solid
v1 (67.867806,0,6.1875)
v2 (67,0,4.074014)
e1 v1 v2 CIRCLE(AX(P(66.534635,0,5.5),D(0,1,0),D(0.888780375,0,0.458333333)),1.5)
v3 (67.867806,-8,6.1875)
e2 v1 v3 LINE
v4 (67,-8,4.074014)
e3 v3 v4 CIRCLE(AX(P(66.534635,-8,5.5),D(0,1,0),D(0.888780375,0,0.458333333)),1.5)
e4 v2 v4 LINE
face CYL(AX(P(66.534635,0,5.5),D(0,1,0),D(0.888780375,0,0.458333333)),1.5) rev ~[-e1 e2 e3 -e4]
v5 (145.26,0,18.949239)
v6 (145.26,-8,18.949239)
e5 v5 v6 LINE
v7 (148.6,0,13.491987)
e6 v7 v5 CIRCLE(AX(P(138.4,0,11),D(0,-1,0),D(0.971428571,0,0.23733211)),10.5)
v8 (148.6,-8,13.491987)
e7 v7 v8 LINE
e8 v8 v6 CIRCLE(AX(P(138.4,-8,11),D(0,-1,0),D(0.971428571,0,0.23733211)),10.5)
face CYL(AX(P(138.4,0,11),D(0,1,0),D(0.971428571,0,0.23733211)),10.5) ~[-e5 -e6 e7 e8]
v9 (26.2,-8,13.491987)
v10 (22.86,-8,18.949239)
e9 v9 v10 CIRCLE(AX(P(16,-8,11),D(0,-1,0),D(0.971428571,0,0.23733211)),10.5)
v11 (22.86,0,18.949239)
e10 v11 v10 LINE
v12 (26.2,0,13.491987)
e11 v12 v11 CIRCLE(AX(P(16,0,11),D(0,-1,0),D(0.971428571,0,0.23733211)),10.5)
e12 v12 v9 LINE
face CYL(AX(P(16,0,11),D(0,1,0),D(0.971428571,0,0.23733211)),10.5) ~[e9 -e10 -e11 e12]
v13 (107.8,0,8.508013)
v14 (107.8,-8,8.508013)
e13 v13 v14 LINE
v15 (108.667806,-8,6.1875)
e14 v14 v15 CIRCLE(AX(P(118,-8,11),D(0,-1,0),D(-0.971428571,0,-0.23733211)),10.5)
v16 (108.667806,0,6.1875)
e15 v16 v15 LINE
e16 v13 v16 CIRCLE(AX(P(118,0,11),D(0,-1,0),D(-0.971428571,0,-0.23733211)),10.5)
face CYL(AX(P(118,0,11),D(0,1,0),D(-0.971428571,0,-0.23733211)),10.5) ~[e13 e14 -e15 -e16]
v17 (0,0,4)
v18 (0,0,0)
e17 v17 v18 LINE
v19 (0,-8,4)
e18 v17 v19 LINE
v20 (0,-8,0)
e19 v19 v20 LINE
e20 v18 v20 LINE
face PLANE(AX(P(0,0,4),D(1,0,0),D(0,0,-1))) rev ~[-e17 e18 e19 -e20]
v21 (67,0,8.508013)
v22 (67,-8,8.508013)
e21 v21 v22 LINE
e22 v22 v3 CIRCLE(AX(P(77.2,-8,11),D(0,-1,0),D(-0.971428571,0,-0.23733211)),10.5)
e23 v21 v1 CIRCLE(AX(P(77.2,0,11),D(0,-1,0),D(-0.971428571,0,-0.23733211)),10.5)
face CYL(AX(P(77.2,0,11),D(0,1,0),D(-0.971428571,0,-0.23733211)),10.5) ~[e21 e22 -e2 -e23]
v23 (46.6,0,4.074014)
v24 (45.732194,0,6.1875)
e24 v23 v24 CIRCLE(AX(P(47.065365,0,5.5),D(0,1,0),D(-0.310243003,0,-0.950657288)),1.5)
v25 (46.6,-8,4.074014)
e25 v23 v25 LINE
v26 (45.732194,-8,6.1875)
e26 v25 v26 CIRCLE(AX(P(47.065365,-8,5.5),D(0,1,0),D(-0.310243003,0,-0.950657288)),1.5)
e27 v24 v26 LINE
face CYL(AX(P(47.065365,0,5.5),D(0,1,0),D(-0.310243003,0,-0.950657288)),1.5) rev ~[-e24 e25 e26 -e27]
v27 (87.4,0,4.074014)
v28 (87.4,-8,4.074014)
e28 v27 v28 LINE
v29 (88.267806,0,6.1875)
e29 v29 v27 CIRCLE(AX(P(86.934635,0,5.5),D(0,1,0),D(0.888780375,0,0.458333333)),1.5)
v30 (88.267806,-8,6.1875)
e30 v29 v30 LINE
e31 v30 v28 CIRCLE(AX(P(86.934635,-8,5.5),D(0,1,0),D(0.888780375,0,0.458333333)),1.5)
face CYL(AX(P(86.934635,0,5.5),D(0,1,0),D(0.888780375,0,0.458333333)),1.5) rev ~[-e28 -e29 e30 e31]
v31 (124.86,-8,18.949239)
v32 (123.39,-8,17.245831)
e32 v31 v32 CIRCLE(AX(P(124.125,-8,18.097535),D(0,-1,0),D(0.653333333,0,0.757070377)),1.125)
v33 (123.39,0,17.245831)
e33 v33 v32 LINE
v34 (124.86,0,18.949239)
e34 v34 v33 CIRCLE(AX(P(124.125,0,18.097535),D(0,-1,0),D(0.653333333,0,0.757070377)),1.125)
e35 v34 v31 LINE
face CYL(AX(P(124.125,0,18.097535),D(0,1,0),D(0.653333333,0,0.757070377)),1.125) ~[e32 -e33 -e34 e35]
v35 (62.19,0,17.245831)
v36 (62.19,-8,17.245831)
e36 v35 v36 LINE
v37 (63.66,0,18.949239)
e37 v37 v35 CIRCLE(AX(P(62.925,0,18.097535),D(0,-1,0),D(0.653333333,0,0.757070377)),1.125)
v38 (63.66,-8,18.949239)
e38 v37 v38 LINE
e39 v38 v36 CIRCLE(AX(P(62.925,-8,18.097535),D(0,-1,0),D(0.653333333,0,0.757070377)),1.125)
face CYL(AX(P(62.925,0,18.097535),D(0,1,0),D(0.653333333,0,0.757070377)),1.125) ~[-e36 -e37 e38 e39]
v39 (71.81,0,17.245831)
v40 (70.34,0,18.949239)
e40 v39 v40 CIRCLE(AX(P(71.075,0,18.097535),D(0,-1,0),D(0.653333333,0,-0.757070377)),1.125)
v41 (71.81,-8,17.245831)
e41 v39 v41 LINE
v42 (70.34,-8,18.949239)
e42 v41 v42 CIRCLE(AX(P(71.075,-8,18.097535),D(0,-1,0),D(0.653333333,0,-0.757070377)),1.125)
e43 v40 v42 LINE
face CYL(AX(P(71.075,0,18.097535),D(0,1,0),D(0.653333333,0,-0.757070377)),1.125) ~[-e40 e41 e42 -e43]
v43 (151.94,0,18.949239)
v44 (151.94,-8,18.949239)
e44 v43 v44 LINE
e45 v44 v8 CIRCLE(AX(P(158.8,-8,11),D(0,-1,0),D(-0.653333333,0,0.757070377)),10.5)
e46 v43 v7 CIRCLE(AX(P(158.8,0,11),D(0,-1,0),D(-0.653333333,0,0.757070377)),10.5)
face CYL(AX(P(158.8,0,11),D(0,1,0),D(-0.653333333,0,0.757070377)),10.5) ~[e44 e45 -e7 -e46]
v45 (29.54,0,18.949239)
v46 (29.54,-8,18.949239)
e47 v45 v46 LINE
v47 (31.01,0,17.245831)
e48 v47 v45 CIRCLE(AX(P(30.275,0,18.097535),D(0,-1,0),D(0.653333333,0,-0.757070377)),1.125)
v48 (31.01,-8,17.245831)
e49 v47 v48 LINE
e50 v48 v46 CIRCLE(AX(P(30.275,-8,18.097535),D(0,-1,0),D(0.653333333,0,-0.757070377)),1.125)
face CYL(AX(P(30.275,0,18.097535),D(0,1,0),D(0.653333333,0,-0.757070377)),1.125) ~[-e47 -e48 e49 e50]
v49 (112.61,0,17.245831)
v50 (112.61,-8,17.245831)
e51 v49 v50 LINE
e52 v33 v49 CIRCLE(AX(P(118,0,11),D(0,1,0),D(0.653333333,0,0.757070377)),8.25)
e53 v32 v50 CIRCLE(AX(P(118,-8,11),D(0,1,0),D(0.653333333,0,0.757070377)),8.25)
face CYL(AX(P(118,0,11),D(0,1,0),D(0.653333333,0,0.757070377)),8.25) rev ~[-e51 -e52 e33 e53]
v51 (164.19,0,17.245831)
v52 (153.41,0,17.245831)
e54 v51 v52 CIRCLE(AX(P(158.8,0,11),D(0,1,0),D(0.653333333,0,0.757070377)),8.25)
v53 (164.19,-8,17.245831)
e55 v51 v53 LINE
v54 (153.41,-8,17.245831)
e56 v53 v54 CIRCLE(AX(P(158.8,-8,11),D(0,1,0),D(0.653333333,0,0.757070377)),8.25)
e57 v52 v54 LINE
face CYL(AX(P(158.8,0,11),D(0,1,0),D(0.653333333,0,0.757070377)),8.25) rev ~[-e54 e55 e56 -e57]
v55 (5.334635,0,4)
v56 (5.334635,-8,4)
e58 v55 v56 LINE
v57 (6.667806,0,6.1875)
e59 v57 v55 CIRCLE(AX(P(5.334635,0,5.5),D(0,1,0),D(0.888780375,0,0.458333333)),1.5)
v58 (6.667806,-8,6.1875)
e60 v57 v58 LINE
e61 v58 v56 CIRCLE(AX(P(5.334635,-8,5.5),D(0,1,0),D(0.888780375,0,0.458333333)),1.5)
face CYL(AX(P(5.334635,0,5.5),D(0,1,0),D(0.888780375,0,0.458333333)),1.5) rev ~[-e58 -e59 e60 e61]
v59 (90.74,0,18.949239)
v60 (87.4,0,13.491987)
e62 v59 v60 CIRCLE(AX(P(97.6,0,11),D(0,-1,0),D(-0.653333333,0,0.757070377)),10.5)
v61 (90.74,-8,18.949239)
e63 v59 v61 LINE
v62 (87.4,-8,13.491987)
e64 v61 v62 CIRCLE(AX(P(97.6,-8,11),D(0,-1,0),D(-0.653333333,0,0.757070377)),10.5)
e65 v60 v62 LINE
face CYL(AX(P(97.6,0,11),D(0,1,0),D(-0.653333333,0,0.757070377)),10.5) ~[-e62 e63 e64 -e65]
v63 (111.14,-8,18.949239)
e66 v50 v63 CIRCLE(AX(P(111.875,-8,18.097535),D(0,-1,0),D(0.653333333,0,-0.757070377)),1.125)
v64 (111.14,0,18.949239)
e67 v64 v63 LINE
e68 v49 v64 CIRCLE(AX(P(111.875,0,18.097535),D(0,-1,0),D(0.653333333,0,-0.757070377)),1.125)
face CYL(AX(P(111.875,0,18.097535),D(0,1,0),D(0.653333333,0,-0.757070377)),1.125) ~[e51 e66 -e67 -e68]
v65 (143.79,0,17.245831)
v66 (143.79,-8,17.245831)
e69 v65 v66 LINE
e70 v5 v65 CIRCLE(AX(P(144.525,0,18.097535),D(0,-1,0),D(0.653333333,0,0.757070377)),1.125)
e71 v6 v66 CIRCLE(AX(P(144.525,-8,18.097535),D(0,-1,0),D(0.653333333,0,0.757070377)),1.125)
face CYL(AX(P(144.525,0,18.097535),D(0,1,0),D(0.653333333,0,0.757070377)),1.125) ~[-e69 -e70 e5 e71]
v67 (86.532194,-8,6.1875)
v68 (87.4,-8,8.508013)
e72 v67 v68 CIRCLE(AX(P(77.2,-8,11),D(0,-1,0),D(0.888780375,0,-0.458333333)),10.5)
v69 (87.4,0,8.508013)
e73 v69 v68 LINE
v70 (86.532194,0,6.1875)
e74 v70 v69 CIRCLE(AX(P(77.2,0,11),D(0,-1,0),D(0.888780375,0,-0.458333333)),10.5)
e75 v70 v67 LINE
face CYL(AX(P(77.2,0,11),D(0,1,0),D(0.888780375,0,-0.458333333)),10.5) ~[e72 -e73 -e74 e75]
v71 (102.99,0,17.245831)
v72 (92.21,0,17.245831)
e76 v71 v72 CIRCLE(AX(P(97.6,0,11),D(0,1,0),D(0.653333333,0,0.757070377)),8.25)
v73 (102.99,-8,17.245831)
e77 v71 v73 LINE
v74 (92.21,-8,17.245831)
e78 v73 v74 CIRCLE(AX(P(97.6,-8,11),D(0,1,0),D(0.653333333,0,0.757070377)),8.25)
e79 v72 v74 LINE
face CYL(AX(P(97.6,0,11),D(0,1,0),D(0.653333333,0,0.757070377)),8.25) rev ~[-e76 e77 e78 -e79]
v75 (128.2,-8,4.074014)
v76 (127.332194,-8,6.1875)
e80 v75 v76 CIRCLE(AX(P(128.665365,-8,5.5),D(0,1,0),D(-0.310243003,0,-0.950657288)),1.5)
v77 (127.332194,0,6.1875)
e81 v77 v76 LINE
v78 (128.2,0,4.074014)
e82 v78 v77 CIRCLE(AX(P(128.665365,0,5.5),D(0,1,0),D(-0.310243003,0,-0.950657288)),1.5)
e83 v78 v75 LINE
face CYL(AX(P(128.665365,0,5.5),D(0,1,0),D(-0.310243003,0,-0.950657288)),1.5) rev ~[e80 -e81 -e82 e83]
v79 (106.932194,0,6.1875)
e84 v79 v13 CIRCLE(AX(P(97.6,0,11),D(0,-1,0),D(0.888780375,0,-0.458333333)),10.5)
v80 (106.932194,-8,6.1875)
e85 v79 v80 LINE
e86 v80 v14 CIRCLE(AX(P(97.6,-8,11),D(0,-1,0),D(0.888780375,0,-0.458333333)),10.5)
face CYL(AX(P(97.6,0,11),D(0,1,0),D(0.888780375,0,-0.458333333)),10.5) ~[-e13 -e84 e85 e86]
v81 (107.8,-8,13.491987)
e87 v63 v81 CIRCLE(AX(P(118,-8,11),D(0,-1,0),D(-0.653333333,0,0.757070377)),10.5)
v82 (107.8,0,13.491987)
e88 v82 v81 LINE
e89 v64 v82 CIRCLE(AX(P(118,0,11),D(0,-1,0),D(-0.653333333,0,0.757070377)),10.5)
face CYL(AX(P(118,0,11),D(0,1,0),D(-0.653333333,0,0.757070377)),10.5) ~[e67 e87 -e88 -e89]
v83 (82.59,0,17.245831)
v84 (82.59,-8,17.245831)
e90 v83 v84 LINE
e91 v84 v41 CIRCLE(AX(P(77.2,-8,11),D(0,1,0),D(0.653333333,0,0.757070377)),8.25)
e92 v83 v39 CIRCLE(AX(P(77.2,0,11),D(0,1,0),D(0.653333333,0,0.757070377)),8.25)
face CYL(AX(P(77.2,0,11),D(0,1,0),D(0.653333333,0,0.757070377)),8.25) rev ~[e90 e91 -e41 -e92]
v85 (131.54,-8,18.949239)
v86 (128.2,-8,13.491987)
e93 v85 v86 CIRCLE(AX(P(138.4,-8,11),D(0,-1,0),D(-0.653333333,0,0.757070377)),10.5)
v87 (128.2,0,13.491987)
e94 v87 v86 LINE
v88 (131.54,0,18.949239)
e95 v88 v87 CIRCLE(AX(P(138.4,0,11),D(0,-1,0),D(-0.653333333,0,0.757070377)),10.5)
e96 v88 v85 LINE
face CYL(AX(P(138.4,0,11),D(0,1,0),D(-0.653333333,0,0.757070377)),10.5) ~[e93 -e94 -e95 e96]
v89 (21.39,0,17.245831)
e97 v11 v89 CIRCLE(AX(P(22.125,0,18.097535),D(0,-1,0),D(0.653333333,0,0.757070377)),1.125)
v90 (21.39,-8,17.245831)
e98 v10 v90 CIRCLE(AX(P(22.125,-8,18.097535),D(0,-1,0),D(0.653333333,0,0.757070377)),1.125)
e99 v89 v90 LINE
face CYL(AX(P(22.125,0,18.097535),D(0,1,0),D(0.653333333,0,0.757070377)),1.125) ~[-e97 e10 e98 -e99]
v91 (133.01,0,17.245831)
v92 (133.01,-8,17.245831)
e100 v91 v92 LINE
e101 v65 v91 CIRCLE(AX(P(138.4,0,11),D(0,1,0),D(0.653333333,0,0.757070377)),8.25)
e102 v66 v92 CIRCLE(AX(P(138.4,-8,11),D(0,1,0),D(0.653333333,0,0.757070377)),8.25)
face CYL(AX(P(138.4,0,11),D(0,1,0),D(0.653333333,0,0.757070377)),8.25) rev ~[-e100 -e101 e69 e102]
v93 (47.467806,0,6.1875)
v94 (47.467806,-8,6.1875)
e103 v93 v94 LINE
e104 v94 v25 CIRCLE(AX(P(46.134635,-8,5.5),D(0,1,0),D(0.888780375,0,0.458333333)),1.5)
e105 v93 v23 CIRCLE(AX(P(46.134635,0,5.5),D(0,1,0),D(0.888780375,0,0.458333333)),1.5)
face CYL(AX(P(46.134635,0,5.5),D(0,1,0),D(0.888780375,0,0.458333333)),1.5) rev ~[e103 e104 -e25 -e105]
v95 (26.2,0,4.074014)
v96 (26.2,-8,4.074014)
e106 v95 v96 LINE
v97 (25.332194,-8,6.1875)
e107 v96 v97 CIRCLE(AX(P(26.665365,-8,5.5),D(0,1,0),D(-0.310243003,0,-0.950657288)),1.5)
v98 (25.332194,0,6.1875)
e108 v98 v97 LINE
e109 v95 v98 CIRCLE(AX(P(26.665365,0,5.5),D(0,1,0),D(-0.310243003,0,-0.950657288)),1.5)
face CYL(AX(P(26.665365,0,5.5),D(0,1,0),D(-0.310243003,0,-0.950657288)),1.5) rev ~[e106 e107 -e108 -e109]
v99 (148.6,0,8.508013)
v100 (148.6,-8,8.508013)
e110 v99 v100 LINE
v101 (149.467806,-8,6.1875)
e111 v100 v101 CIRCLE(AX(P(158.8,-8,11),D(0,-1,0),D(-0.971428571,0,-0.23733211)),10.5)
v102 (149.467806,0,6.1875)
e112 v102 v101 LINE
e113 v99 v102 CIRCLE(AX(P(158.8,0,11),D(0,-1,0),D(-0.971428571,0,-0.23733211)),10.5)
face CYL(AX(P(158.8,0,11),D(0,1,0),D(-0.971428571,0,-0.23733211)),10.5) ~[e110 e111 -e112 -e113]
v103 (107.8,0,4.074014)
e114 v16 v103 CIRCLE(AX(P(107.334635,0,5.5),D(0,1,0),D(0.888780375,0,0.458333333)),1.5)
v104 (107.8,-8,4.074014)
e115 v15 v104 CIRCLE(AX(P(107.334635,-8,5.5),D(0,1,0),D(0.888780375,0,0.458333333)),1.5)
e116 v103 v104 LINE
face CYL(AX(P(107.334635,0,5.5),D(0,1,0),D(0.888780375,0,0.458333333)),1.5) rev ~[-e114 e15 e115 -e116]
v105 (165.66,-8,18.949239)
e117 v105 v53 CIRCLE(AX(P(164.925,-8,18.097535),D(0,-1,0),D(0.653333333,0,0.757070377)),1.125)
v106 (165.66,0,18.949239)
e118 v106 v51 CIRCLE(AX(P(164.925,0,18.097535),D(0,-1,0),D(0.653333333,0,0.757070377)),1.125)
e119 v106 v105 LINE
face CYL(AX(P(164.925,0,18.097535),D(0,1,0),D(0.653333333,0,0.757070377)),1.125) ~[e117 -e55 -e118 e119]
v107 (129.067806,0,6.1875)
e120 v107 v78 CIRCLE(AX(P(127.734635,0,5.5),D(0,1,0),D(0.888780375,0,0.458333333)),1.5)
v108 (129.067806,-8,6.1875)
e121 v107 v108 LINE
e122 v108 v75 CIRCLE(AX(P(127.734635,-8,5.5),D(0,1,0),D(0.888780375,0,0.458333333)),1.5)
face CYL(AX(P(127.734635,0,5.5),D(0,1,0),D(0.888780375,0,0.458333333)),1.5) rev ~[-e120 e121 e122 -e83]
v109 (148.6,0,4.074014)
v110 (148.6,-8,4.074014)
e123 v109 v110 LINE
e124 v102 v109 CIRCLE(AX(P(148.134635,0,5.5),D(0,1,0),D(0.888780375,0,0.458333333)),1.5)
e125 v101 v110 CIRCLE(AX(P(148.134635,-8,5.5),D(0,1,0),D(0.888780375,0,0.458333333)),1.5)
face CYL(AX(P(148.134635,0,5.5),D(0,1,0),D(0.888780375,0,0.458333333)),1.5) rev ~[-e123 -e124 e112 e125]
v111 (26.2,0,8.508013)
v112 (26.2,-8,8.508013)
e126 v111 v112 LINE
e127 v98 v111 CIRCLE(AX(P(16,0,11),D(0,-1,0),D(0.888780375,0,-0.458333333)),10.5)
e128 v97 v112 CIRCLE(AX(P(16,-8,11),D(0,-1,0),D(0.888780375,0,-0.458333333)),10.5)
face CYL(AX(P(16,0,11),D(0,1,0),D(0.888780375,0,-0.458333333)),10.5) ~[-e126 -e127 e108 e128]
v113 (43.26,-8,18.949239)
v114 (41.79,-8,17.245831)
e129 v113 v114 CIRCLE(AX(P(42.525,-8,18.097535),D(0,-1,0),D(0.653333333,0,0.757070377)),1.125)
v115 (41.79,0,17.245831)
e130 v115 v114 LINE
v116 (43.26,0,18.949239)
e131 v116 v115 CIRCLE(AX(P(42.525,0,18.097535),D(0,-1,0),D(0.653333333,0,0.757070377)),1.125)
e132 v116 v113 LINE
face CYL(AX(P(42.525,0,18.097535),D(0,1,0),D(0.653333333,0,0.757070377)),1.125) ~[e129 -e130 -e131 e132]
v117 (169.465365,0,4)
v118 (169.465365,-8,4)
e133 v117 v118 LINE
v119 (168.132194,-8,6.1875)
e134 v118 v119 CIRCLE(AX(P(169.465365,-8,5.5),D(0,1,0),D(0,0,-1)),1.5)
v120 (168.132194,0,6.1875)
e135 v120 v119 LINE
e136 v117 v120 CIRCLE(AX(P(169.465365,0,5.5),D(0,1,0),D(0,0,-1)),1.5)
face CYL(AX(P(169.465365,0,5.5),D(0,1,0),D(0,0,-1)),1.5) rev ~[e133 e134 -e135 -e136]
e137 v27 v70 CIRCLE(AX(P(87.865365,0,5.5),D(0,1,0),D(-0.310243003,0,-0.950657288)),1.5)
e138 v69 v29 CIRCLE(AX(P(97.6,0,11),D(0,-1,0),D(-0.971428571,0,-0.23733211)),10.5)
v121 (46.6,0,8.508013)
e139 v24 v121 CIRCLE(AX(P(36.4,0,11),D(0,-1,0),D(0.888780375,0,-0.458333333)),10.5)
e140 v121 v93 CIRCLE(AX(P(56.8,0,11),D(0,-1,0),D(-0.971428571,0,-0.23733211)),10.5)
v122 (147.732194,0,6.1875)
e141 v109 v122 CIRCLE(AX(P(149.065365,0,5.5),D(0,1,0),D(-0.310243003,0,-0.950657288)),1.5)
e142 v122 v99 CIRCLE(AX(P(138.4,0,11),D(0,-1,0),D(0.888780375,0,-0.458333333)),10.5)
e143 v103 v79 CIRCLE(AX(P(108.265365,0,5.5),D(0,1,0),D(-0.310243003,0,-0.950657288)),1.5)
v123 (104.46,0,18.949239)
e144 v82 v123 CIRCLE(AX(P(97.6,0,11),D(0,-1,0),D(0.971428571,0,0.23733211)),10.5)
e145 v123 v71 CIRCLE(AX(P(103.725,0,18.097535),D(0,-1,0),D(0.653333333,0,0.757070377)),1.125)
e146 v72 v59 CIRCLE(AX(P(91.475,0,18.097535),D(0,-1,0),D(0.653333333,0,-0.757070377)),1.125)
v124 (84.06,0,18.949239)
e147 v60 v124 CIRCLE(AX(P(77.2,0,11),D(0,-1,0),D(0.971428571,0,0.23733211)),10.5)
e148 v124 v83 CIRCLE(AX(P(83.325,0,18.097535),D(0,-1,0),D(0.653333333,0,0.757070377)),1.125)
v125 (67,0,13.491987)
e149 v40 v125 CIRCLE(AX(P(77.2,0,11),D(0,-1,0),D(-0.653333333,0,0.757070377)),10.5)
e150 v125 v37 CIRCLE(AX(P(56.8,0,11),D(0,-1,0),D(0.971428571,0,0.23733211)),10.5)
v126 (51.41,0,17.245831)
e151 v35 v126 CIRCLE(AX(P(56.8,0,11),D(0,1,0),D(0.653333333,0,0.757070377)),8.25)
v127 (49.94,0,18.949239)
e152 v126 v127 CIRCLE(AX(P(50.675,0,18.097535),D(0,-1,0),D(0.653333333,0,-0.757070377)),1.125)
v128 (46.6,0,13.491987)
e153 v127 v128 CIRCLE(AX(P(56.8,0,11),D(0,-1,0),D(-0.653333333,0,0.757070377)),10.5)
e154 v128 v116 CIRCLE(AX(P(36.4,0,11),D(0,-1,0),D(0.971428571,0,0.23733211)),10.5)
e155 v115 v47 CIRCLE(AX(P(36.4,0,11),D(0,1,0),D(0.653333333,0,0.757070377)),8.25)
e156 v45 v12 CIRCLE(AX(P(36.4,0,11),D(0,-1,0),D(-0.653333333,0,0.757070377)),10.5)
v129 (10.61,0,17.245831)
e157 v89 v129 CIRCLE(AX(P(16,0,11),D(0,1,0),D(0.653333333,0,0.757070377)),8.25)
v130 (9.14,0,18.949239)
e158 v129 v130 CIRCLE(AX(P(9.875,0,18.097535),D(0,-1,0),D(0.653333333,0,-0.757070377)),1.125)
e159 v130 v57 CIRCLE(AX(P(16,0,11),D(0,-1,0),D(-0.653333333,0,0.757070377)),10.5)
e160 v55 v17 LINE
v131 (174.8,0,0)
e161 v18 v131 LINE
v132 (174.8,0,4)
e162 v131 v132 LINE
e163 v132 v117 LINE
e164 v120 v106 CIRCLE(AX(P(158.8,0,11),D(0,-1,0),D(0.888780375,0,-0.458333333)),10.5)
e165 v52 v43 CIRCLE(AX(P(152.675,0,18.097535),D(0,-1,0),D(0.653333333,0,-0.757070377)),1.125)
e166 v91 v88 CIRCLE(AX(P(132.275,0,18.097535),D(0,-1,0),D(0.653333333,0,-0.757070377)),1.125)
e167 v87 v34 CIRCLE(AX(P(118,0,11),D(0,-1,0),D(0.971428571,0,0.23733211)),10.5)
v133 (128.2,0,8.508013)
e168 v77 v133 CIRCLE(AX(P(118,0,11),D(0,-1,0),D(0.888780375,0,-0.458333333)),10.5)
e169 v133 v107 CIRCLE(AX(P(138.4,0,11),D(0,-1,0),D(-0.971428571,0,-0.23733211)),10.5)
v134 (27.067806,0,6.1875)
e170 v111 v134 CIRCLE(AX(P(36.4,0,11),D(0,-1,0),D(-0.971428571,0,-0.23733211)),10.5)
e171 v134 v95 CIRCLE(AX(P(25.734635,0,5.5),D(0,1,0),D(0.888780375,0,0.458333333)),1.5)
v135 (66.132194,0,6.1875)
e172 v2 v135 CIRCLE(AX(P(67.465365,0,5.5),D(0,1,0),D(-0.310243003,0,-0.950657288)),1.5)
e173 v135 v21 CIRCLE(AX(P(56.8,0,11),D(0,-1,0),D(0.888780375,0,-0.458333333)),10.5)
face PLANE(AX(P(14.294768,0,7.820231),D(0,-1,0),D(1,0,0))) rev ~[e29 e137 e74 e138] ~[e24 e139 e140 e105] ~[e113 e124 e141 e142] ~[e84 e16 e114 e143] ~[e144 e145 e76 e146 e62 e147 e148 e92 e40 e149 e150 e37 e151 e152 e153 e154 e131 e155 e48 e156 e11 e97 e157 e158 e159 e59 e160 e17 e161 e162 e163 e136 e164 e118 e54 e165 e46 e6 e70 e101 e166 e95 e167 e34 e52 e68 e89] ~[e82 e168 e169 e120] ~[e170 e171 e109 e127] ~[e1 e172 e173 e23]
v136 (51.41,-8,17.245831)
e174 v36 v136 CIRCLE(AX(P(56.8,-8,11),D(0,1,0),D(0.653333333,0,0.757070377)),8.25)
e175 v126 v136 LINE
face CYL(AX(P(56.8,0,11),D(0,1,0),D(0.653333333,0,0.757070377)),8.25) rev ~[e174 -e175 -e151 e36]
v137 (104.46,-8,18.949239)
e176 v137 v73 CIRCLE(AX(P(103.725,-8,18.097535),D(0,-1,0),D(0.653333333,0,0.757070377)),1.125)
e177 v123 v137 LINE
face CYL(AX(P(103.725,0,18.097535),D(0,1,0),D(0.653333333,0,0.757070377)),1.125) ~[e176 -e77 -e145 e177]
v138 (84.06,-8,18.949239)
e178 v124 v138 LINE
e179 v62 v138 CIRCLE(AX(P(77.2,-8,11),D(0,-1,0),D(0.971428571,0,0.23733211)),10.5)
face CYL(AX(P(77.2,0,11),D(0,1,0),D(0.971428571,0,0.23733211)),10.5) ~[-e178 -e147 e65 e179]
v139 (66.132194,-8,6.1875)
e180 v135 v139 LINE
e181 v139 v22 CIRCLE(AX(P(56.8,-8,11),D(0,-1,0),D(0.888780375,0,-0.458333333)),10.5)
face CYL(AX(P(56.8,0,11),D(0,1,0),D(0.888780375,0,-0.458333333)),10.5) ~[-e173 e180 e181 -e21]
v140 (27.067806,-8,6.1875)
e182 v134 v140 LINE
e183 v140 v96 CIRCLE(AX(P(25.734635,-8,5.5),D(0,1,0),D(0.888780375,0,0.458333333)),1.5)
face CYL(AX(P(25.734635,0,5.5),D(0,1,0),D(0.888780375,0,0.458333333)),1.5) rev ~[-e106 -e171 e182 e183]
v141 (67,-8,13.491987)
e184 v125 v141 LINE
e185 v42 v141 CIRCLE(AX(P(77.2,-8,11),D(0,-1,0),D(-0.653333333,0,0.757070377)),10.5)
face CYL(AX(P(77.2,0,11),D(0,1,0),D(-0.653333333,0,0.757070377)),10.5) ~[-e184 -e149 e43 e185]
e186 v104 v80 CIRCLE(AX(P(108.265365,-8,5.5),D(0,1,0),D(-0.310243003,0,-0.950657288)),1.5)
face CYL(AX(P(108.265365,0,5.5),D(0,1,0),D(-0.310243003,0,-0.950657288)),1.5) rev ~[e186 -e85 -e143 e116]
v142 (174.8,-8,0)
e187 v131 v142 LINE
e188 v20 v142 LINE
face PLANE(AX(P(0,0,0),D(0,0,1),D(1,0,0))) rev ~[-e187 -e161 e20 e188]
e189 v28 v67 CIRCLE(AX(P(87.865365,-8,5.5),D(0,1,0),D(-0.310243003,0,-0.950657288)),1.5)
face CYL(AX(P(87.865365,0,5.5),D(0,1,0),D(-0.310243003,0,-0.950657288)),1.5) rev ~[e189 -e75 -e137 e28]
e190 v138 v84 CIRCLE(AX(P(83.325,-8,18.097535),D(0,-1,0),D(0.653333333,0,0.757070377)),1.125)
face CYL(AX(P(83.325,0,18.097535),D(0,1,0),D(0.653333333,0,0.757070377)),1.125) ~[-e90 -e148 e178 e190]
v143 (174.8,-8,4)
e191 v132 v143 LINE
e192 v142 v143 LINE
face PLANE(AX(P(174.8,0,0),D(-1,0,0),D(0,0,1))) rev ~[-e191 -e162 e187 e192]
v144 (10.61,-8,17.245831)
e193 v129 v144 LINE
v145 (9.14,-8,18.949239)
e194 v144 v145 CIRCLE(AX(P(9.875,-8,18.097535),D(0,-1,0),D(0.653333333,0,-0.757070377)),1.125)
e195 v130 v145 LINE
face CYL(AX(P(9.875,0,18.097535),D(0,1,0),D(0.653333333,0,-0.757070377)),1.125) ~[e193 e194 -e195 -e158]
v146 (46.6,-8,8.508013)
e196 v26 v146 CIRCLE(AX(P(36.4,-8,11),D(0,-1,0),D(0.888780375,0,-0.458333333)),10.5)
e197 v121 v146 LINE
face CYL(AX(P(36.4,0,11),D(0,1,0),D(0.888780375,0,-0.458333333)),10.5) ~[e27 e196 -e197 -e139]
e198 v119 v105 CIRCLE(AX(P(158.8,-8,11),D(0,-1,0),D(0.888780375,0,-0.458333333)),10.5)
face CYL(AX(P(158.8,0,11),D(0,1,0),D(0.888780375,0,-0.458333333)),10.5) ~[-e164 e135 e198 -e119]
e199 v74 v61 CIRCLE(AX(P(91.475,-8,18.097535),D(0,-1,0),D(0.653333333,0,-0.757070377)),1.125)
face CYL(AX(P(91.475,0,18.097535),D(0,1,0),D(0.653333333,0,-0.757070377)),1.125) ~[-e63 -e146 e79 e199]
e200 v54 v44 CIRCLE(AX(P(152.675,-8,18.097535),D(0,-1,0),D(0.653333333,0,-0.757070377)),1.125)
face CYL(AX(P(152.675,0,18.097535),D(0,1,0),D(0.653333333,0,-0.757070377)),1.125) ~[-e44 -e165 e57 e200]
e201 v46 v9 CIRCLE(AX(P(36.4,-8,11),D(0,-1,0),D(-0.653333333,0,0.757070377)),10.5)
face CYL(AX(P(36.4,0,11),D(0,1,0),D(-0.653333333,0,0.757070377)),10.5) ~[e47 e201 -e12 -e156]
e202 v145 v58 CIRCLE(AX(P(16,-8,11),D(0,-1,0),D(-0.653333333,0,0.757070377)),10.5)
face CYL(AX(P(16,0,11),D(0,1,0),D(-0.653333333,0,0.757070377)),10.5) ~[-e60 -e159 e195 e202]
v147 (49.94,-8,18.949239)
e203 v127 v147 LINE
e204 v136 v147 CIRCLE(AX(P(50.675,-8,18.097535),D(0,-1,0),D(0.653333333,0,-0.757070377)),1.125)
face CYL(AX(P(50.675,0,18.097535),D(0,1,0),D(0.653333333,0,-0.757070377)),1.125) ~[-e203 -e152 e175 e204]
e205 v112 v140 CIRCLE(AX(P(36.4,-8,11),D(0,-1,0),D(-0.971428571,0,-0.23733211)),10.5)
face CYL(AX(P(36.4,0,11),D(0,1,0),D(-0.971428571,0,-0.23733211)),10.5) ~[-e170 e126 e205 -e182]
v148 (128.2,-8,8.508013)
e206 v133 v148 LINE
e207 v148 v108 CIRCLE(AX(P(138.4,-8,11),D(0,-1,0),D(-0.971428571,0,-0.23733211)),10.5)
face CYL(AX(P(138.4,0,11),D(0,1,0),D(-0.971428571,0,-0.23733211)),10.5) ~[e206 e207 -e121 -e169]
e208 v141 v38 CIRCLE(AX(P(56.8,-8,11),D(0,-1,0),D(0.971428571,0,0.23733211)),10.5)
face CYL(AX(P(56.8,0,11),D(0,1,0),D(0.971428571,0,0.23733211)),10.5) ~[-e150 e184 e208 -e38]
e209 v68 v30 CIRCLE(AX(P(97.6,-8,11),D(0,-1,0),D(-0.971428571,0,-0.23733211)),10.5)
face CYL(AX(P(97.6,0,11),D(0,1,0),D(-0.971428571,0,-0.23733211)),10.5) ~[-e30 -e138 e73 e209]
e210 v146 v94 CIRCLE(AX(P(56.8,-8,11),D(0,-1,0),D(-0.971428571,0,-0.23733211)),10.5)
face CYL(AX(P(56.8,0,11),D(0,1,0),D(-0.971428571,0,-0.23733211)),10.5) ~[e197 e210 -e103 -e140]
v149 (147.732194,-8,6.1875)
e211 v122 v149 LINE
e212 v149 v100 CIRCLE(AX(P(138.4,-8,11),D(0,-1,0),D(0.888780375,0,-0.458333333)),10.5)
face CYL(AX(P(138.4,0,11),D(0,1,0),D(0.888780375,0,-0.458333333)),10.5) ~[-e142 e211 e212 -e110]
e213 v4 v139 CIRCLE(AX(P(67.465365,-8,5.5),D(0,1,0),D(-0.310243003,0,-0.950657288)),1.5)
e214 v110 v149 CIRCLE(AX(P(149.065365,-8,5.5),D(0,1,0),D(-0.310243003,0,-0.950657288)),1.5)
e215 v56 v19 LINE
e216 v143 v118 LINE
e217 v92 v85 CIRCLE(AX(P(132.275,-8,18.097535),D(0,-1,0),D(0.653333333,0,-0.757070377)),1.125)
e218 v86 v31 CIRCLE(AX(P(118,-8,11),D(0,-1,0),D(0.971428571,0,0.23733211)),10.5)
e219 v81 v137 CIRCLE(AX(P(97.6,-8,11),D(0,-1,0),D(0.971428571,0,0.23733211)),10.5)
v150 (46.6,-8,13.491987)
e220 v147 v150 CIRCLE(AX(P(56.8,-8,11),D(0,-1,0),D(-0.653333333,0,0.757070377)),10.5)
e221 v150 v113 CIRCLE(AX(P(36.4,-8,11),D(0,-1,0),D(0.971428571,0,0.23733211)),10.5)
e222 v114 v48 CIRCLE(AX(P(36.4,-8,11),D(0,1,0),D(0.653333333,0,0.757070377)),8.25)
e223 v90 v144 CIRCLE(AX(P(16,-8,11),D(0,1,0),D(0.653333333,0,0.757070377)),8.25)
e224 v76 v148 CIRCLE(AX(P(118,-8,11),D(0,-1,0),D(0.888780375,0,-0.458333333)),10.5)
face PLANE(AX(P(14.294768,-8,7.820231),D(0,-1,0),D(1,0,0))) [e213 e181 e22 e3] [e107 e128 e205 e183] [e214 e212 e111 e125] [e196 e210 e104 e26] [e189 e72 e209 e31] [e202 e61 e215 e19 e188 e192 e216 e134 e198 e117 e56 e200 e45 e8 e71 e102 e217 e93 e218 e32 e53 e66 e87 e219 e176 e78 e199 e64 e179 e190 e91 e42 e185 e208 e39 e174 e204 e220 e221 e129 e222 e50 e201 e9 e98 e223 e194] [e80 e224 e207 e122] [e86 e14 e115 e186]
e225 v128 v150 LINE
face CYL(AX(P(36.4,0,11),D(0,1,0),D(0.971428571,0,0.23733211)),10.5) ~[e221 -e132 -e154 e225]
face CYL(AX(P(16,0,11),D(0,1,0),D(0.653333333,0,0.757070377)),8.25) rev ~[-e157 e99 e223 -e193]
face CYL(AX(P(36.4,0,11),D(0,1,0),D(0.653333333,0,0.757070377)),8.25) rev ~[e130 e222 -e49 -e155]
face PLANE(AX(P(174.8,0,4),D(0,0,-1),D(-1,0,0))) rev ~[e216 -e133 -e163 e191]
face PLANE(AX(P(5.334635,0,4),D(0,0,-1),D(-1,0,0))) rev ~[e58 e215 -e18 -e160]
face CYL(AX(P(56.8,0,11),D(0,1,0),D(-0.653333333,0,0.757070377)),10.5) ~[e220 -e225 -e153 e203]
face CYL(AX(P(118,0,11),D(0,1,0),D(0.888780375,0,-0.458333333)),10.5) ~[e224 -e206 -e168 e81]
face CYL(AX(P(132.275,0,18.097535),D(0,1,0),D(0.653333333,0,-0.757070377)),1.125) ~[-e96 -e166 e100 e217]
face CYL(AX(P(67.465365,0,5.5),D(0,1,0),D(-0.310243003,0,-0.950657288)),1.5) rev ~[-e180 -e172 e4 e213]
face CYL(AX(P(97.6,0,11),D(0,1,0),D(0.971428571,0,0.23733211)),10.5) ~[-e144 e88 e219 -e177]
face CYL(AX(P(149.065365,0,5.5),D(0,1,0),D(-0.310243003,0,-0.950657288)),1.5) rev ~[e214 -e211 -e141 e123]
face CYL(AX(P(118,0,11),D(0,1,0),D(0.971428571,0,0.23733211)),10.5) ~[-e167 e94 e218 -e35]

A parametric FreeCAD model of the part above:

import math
import FreeCAD as App
import Part
import Sketcher
Q = App.Units.Quantity

doc = App.newDocument("Part")
body = doc.addObject("PartDesign::Body", "Body")

sketch1 = body.newObject("Sketcher::SketchObject", "Sketch")
sketch1.AttachmentSupport = (doc.getObject("XZ_Plane"), [""])
sketch1.MapMode = "FlatFace"
sketch1.addGeometry([
    Part.ArcOfCircle(Part.Circle(App.Vector(158.8, 11, 0), App.Vector(0, 0, 1), 10.5), math.radians(131), math.radians(166)),
    Part.ArcOfCircle(Part.Circle(App.Vector(138.4, 11, 0), App.Vector(0, 0, 1), 10.5), math.radians(14), math.radians(49)),
    Part.ArcOfCircle(Part.Circle(App.Vector(144.5, 18.1, 0), App.Vector(0, 0, 1), 1.1), math.radians(49), math.radians(229)),
    Part.ArcOfCircle(Part.Circle(App.Vector(138.4, 11, 0), App.Vector(0, 0, 1), 8.2), math.radians(131), math.radians(409)),
    Part.ArcOfCircle(Part.Circle(App.Vector(132.3, 18.1, 0), App.Vector(0, 0, 1), 1.1), math.radians(-49), math.radians(131)),
    Part.ArcOfCircle(Part.Circle(App.Vector(138.4, 11, 0), App.Vector(0, 0, 1), 10.5), math.radians(131), math.radians(166)),
    Part.ArcOfCircle(Part.Circle(App.Vector(118, 11, 0), App.Vector(0, 0, 1), 10.5), math.radians(14), math.radians(49)),
    Part.ArcOfCircle(Part.Circle(App.Vector(124.1, 18.1, 0), App.Vector(0, 0, 1), 1.1), math.radians(49), math.radians(229)),
    Part.ArcOfCircle(Part.Circle(App.Vector(118, 11, 0), App.Vector(0, 0, 1), 8.2), math.radians(131), math.radians(409)),
    Part.ArcOfCircle(Part.Circle(App.Vector(111.9, 18.1, 0), App.Vector(0, 0, 1), 1.1), math.radians(-49), math.radians(131)),
    Part.ArcOfCircle(Part.Circle(App.Vector(118, 11, 0), App.Vector(0, 0, 1), 10.5), math.radians(131), math.radians(166)),
    Part.ArcOfCircle(Part.Circle(App.Vector(97.6, 11, 0), App.Vector(0, 0, 1), 10.5), math.radians(14), math.radians(49)),
    Part.ArcOfCircle(Part.Circle(App.Vector(103.7, 18.1, 0), App.Vector(0, 0, 1), 1.1), math.radians(49), math.radians(229)),
    Part.ArcOfCircle(Part.Circle(App.Vector(97.6, 11, 0), App.Vector(0, 0, 1), 8.2), math.radians(131), math.radians(409)),
    Part.ArcOfCircle(Part.Circle(App.Vector(91.5, 18.1, 0), App.Vector(0, 0, 1), 1.1), math.radians(-49), math.radians(131)),
    Part.ArcOfCircle(Part.Circle(App.Vector(97.6, 11, 0), App.Vector(0, 0, 1), 10.5), math.radians(131), math.radians(166)),
    Part.ArcOfCircle(Part.Circle(App.Vector(77.2, 11, 0), App.Vector(0, 0, 1), 10.5), math.radians(14), math.radians(49)),
    Part.ArcOfCircle(Part.Circle(App.Vector(83.3, 18.1, 0), App.Vector(0, 0, 1), 1.1), math.radians(49), math.radians(229)),
    Part.ArcOfCircle(Part.Circle(App.Vector(77.2, 11, 0), App.Vector(0, 0, 1), 8.2), math.radians(131), math.radians(409)),
    Part.ArcOfCircle(Part.Circle(App.Vector(71.1, 18.1, 0), App.Vector(0, 0, 1), 1.1), math.radians(-49), math.radians(131)),
    Part.ArcOfCircle(Part.Circle(App.Vector(77.2, 11, 0), App.Vector(0, 0, 1), 10.5), math.radians(131), math.radians(166)),
    Part.ArcOfCircle(Part.Circle(App.Vector(56.8, 11, 0), App.Vector(0, 0, 1), 10.5), math.radians(14), math.radians(49)),
    Part.ArcOfCircle(Part.Circle(App.Vector(62.9, 18.1, 0), App.Vector(0, 0, 1), 1.1), math.radians(49), math.radians(229)),
    Part.ArcOfCircle(Part.Circle(App.Vector(56.8, 11, 0), App.Vector(0, 0, 1), 8.2), math.radians(131), math.radians(409)),
    Part.ArcOfCircle(Part.Circle(App.Vector(50.7, 18.1, 0), App.Vector(0, 0, 1), 1.1), math.radians(-49), math.radians(131)),
    Part.ArcOfCircle(Part.Circle(App.Vector(56.8, 11, 0), App.Vector(0, 0, 1), 10.5), math.radians(131), math.radians(166)),
    Part.ArcOfCircle(Part.Circle(App.Vector(36.4, 11, 0), App.Vector(0, 0, 1), 10.5), math.radians(14), math.radians(49)),
    Part.ArcOfCircle(Part.Circle(App.Vector(42.5, 18.1, 0), App.Vector(0, 0, 1), 1.1), math.radians(49), math.radians(229)),
    Part.ArcOfCircle(Part.Circle(App.Vector(36.4, 11, 0), App.Vector(0, 0, 1), 8.2), math.radians(131), math.radians(409)),
    Part.ArcOfCircle(Part.Circle(App.Vector(30.3, 18.1, 0), App.Vector(0, 0, 1), 1.1), math.radians(-49), math.radians(131)),
    Part.ArcOfCircle(Part.Circle(App.Vector(36.4, 11, 0), App.Vector(0, 0, 1), 10.5), math.radians(131), math.radians(166)),
    Part.ArcOfCircle(Part.Circle(App.Vector(16, 11, 0), App.Vector(0, 0, 1), 10.5), math.radians(14), math.radians(49)),
    Part.ArcOfCircle(Part.Circle(App.Vector(22.1, 18.1, 0), App.Vector(0, 0, 1), 1.1), math.radians(49), math.radians(229)),
    Part.ArcOfCircle(Part.Circle(App.Vector(16, 11, 0), App.Vector(0, 0, 1), 8.2), math.radians(131), math.radians(409)),
    Part.ArcOfCircle(Part.Circle(App.Vector(9.9, 18.1, 0), App.Vector(0, 0, 1), 1.1), math.radians(-49), math.radians(131)),
    Part.ArcOfCircle(Part.Circle(App.Vector(16, 11, 0), App.Vector(0, 0, 1), 10.5), math.radians(131), math.radians(207)),
    Part.ArcOfCircle(Part.Circle(App.Vector(5.3, 5.5, 0), App.Vector(0, 0, 1), 1.5), math.radians(-90), math.radians(27)),
    Part.LineSegment(App.Vector(5.3, 4, 0), App.Vector(0, 4, 0)),
    Part.LineSegment(App.Vector(0, 4, 0), App.Vector(0, 0, 0)),
    Part.LineSegment(App.Vector(0, 0, 0), App.Vector(174.8, 0, 0)),
    Part.LineSegment(App.Vector(174.8, 0, 0), App.Vector(174.8, 4, 0)),
    Part.LineSegment(App.Vector(174.8, 4, 0), App.Vector(169.5, 4, 0)),
    Part.ArcOfCircle(Part.Circle(App.Vector(169.5, 5.5, 0), App.Vector(0, 0, 1), 1.5), math.radians(153), math.radians(270)),
    Part.ArcOfCircle(Part.Circle(App.Vector(158.8, 11, 0), App.Vector(0, 0, 1), 10.5), math.radians(-27), math.radians(49)),
    Part.ArcOfCircle(Part.Circle(App.Vector(164.9, 18.1, 0), App.Vector(0, 0, 1), 1.1), math.radians(49), math.radians(229)),
    Part.ArcOfCircle(Part.Circle(App.Vector(158.8, 11, 0), App.Vector(0, 0, 1), 8.2), math.radians(131), math.radians(409)),
    Part.ArcOfCircle(Part.Circle(App.Vector(152.7, 18.1, 0), App.Vector(0, 0, 1), 1.1), math.radians(-49), math.radians(131)),
    Part.ArcOfCircle(Part.Circle(App.Vector(16, 11, 0), App.Vector(0, 0, 1), 10.5), math.radians(-27.28), math.radians(-13.73)),
    Part.ArcOfCircle(Part.Circle(App.Vector(36.4, 11, 0), App.Vector(0, 0, 1), 10.5), math.radians(-166.27), math.radians(-152.72)),
    Part.ArcOfCircle(Part.Circle(App.Vector(25.7, 5.5, 0), App.Vector(0, 0, 1), 1.5), math.radians(-72), math.radians(27)),
    Part.ArcOfCircle(Part.Circle(App.Vector(26.7, 5.5, 0), App.Vector(0, 0, 1), 1.5), math.radians(153), math.radians(252)),
    Part.ArcOfCircle(Part.Circle(App.Vector(36.4, 11, 0), App.Vector(0, 0, 1), 10.5), math.radians(-27.28), math.radians(-13.73)),
    Part.ArcOfCircle(Part.Circle(App.Vector(56.8, 11, 0), App.Vector(0, 0, 1), 10.5), math.radians(-166.27), math.radians(-152.72)),
    Part.ArcOfCircle(Part.Circle(App.Vector(46.1, 5.5, 0), App.Vector(0, 0, 1), 1.5), math.radians(-72), math.radians(27)),
    Part.ArcOfCircle(Part.Circle(App.Vector(47.1, 5.5, 0), App.Vector(0, 0, 1), 1.5), math.radians(153), math.radians(252)),
    Part.ArcOfCircle(Part.Circle(App.Vector(56.8, 11, 0), App.Vector(0, 0, 1), 10.5), math.radians(-27.28), math.radians(-13.73)),
    Part.ArcOfCircle(Part.Circle(App.Vector(77.2, 11, 0), App.Vector(0, 0, 1), 10.5), math.radians(-166.27), math.radians(-152.72)),
    Part.ArcOfCircle(Part.Circle(App.Vector(66.5, 5.5, 0), App.Vector(0, 0, 1), 1.5), math.radians(-72), math.radians(27)),
    Part.ArcOfCircle(Part.Circle(App.Vector(67.5, 5.5, 0), App.Vector(0, 0, 1), 1.5), math.radians(153), math.radians(252)),
    Part.ArcOfCircle(Part.Circle(App.Vector(77.2, 11, 0), App.Vector(0, 0, 1), 10.5), math.radians(-27.28), math.radians(-13.73)),
    Part.ArcOfCircle(Part.Circle(App.Vector(97.6, 11, 0), App.Vector(0, 0, 1), 10.5), math.radians(-166.27), math.radians(-152.72)),
    Part.ArcOfCircle(Part.Circle(App.Vector(86.9, 5.5, 0), App.Vector(0, 0, 1), 1.5), math.radians(-72), math.radians(27)),
    Part.ArcOfCircle(Part.Circle(App.Vector(87.9, 5.5, 0), App.Vector(0, 0, 1), 1.5), math.radians(153), math.radians(252)),
    Part.ArcOfCircle(Part.Circle(App.Vector(97.6, 11, 0), App.Vector(0, 0, 1), 10.5), math.radians(-27.28), math.radians(-13.73)),
    Part.ArcOfCircle(Part.Circle(App.Vector(118, 11, 0), App.Vector(0, 0, 1), 10.5), math.radians(-166.27), math.radians(-152.72)),
    Part.ArcOfCircle(Part.Circle(App.Vector(107.3, 5.5, 0), App.Vector(0, 0, 1), 1.5), math.radians(-72), math.radians(27)),
    Part.ArcOfCircle(Part.Circle(App.Vector(108.3, 5.5, 0), App.Vector(0, 0, 1), 1.5), math.radians(153), math.radians(252)),
    Part.ArcOfCircle(Part.Circle(App.Vector(118, 11, 0), App.Vector(0, 0, 1), 10.5), math.radians(-27.28), math.radians(-13.73)),
    Part.ArcOfCircle(Part.Circle(App.Vector(138.4, 11, 0), App.Vector(0, 0, 1), 10.5), math.radians(-166.27), math.radians(-152.72)),
    Part.ArcOfCircle(Part.Circle(App.Vector(127.7, 5.5, 0), App.Vector(0, 0, 1), 1.5), math.radians(-72), math.radians(27)),
    Part.ArcOfCircle(Part.Circle(App.Vector(128.7, 5.5, 0), App.Vector(0, 0, 1), 1.5), math.radians(153), math.radians(252)),
    Part.ArcOfCircle(Part.Circle(App.Vector(138.4, 11, 0), App.Vector(0, 0, 1), 10.5), math.radians(-27.28), math.radians(-13.73)),
    Part.ArcOfCircle(Part.Circle(App.Vector(158.8, 11, 0), App.Vector(0, 0, 1), 10.5), math.radians(-166.27), math.radians(-152.72)),
    Part.ArcOfCircle(Part.Circle(App.Vector(148.1, 5.5, 0), App.Vector(0, 0, 1), 1.5), math.radians(-72), math.radians(27)),
    Part.ArcOfCircle(Part.Circle(App.Vector(149.1, 5.5, 0), App.Vector(0, 0, 1), 1.5), math.radians(153), math.radians(252)),
], False)
sketch1.addConstraint([
    Sketcher.Constraint("Coincident", 0, 2, 1, 1),
    Sketcher.Constraint("Tangent", 1, 2, 2, 1),
    Sketcher.Constraint("Tangent", 2, 2, 3, 2),
    Sketcher.Constraint("Tangent", 3, 1, 4, 1),
    Sketcher.Constraint("Tangent", 4, 2, 5, 1),
    Sketcher.Constraint("Coincident", 5, 2, 6, 1),
    Sketcher.Constraint("Tangent", 6, 2, 7, 1),
    Sketcher.Constraint("Tangent", 7, 2, 8, 2),
    Sketcher.Constraint("Tangent", 8, 1, 9, 1),
    Sketcher.Constraint("Tangent", 9, 2, 10, 1),
    Sketcher.Constraint("Coincident", 10, 2, 11, 1),
    Sketcher.Constraint("Tangent", 11, 2, 12, 1),
    Sketcher.Constraint("Tangent", 12, 2, 13, 2),
    Sketcher.Constraint("Tangent", 13, 1, 14, 1),
    Sketcher.Constraint("Tangent", 14, 2, 15, 1),
    Sketcher.Constraint("Coincident", 15, 2, 16, 1),
    Sketcher.Constraint("Tangent", 16, 2, 17, 1),
    Sketcher.Constraint("Tangent", 17, 2, 18, 2),
    Sketcher.Constraint("Tangent", 18, 1, 19, 1),
    Sketcher.Constraint("Tangent", 19, 2, 20, 1),
    Sketcher.Constraint("Coincident", 20, 2, 21, 1),
    Sketcher.Constraint("Tangent", 21, 2, 22, 1),
    Sketcher.Constraint("Tangent", 22, 2, 23, 2),
    Sketcher.Constraint("Tangent", 23, 1, 24, 1),
    Sketcher.Constraint("Tangent", 24, 2, 25, 1),
    Sketcher.Constraint("Coincident", 25, 2, 26, 1),
    Sketcher.Constraint("Tangent", 26, 2, 27, 1),
    Sketcher.Constraint("Tangent", 27, 2, 28, 2),
    Sketcher.Constraint("Tangent", 28, 1, 29, 1),
    Sketcher.Constraint("Tangent", 29, 2, 30, 1),
    Sketcher.Constraint("Coincident", 30, 2, 31, 1),
    Sketcher.Constraint("Tangent", 31, 2, 32, 1),
    Sketcher.Constraint("Tangent", 32, 2, 33, 2),
    Sketcher.Constraint("Tangent", 33, 1, 34, 1),
    Sketcher.Constraint("Tangent", 34, 2, 35, 1),
    Sketcher.Constraint("Tangent", 35, 2, 36, 2),
    Sketcher.Constraint("Tangent", 36, 1, 37, 1),
    Sketcher.Constraint("Coincident", 37, 2, 38, 1),
    Sketcher.Constraint("Coincident", 38, 2, 39, 1),
    Sketcher.Constraint("Coincident", 39, 2, 40, 1),
    Sketcher.Constraint("Coincident", 40, 2, 41, 1),
    Sketcher.Constraint("Tangent", 41, 2, 42, 2),
    Sketcher.Constraint("Tangent", 42, 1, 43, 1),
    Sketcher.Constraint("Tangent", 43, 2, 44, 1),
    Sketcher.Constraint("Tangent", 44, 2, 45, 2),
    Sketcher.Constraint("Tangent", 45, 1, 46, 1),
    Sketcher.Constraint("Tangent", 46, 2, 0, 1),
    Sketcher.Constraint("Coincident", 47, 2, 48, 1),
    Sketcher.Constraint("Tangent", 48, 2, 49, 2),
    Sketcher.Constraint("Coincident", 49, 1, 50, 2),
    Sketcher.Constraint("Tangent", 50, 1, 47, 1),
    Sketcher.Constraint("Coincident", 51, 2, 52, 1),
    Sketcher.Constraint("Tangent", 52, 2, 53, 2),
    Sketcher.Constraint("Coincident", 53, 1, 54, 2),
    Sketcher.Constraint("Tangent", 54, 1, 51, 1),
    Sketcher.Constraint("Coincident", 55, 2, 56, 1),
    Sketcher.Constraint("Tangent", 56, 2, 57, 2),
    Sketcher.Constraint("Coincident", 57, 1, 58, 2),
    Sketcher.Constraint("Tangent", 58, 1, 55, 1),
    Sketcher.Constraint("Coincident", 59, 2, 60, 1),
    Sketcher.Constraint("Tangent", 60, 2, 61, 2),
    Sketcher.Constraint("Coincident", 61, 1, 62, 2),
    Sketcher.Constraint("Tangent", 62, 1, 59, 1),
    Sketcher.Constraint("Coincident", 63, 2, 64, 1),
    Sketcher.Constraint("Tangent", 64, 2, 65, 2),
    Sketcher.Constraint("Coincident", 65, 1, 66, 2),
    Sketcher.Constraint("Tangent", 66, 1, 63, 1),
    Sketcher.Constraint("Coincident", 67, 2, 68, 1),
    Sketcher.Constraint("Tangent", 68, 2, 69, 2),
    Sketcher.Constraint("Coincident", 69, 1, 70, 2),
    Sketcher.Constraint("Tangent", 70, 1, 67, 1),
    Sketcher.Constraint("Coincident", 71, 2, 72, 1),
    Sketcher.Constraint("Tangent", 72, 2, 73, 2),
    Sketcher.Constraint("Coincident", 73, 1, 74, 2),
    Sketcher.Constraint("Tangent", 74, 1, 71, 1),
    Sketcher.Constraint("Horizontal", 37),
    Sketcher.Constraint("Vertical", 38),
    Sketcher.Constraint("Horizontal", 39),
    Sketcher.Constraint("Vertical", 40),
    Sketcher.Constraint("Horizontal", 41),
    Sketcher.Constraint("Coincident", 38, 2, -1, 1),
    Sketcher.Constraint("Coincident", 3, 3, 1, 3),
    Sketcher.Constraint("Coincident", 5, 3, 1, 3),
    Sketcher.Constraint("Coincident", 8, 3, 6, 3),
    Sketcher.Constraint("Coincident", 10, 3, 6, 3),
    Sketcher.Constraint("Coincident", 13, 3, 11, 3),
    Sketcher.Constraint("Coincident", 15, 3, 11, 3),
    Sketcher.Constraint("Coincident", 18, 3, 16, 3),
    Sketcher.Constraint("Coincident", 20, 3, 16, 3),
    Sketcher.Constraint("Coincident", 23, 3, 21, 3),
    Sketcher.Constraint("Coincident", 25, 3, 21, 3),
    Sketcher.Constraint("Coincident", 28, 3, 26, 3),
    Sketcher.Constraint("Coincident", 30, 3, 26, 3),
    Sketcher.Constraint("Coincident", 33, 3, 31, 3),
    Sketcher.Constraint("Coincident", 35, 3, 31, 3),
    Sketcher.Constraint("Coincident", 43, 3, 0, 3),
    Sketcher.Constraint("Coincident", 45, 3, 0, 3),
    Sketcher.Constraint("Coincident", 47, 3, 31, 3),
    Sketcher.Constraint("Coincident", 48, 3, 26, 3),
    Sketcher.Constraint("Coincident", 51, 3, 26, 3),
    Sketcher.Constraint("Coincident", 52, 3, 21, 3),
    Sketcher.Constraint("Coincident", 55, 3, 21, 3),
    Sketcher.Constraint("Coincident", 56, 3, 16, 3),
    Sketcher.Constraint("Coincident", 59, 3, 16, 3),
    Sketcher.Constraint("Coincident", 60, 3, 11, 3),
    Sketcher.Constraint("Coincident", 63, 3, 11, 3),
    Sketcher.Constraint("Coincident", 64, 3, 6, 3),
    Sketcher.Constraint("Coincident", 67, 3, 6, 3),
    Sketcher.Constraint("Coincident", 68, 3, 1, 3),
    Sketcher.Constraint("Coincident", 71, 3, 1, 3),
    Sketcher.Constraint("Coincident", 72, 3, 0, 3),
    Sketcher.Constraint("Equal", 0, 1),
    Sketcher.Constraint("Equal", 2, 4),
    Sketcher.Constraint("Equal", 5, 6),
    Sketcher.Constraint("Equal", 4, 7),
    Sketcher.Constraint("Equal", 7, 9),
    Sketcher.Constraint("Equal", 10, 11),
    Sketcher.Constraint("Equal", 9, 12),
    Sketcher.Constraint("Equal", 12, 14),
    Sketcher.Constraint("Equal", 15, 16),
    Sketcher.Constraint("Equal", 14, 17),
    Sketcher.Constraint("Equal", 17, 19),
    Sketcher.Constraint("Equal", 20, 21),
    Sketcher.Constraint("Equal", 19, 22),
    Sketcher.Constraint("Equal", 22, 24),
    Sketcher.Constraint("Equal", 25, 26),
    Sketcher.Constraint("Equal", 24, 27),
    Sketcher.Constraint("Equal", 27, 29),
    Sketcher.Constraint("Equal", 30, 31),
    Sketcher.Constraint("Equal", 29, 32),
    Sketcher.Constraint("Equal", 32, 34),
    Sketcher.Constraint("Equal", 36, 42),
    Sketcher.Constraint("Equal", 35, 43),
    Sketcher.Constraint("Equal", 34, 44),
    Sketcher.Constraint("Equal", 43, 47),
    Sketcher.Constraint("Equal", 47, 48),
    Sketcher.Constraint("Equal", 42, 49),
    Sketcher.Constraint("Equal", 49, 50),
    Sketcher.Constraint("Equal", 48, 51),
    Sketcher.Constraint("Equal", 51, 52),
    Sketcher.Constraint("Equal", 50, 53),
    Sketcher.Constraint("Equal", 53, 54),
    Sketcher.Constraint("Equal", 52, 55),
    Sketcher.Constraint("Equal", 55, 56),
    Sketcher.Constraint("Equal", 54, 57),
    Sketcher.Constraint("Equal", 57, 58),
    Sketcher.Constraint("Equal", 56, 59),
    Sketcher.Constraint("Equal", 59, 60),
    Sketcher.Constraint("Equal", 58, 61),
    Sketcher.Constraint("Equal", 61, 62),
    Sketcher.Constraint("Equal", 60, 63),
    Sketcher.Constraint("Equal", 63, 64),
    Sketcher.Constraint("Equal", 62, 65),
    Sketcher.Constraint("Equal", 65, 66),
    Sketcher.Constraint("Equal", 64, 67),
    Sketcher.Constraint("Equal", 67, 68),
    Sketcher.Constraint("Equal", 66, 69),
    Sketcher.Constraint("Equal", 69, 70),
    Sketcher.Constraint("Equal", 68, 71),
    Sketcher.Constraint("Equal", 71, 72),
    Sketcher.Constraint("Equal", 70, 73),
    Sketcher.Constraint("Equal", 73, 74),
    Sketcher.Constraint("Horizontal", 0, 3, 1, 3),
    Sketcher.Constraint("Horizontal", 2, 3, 4, 3),
    Sketcher.Constraint("Horizontal", 5, 3, 6, 3),
    Sketcher.Constraint("Horizontal", 4, 3, 7, 3),
    Sketcher.Constraint("Horizontal", 7, 3, 9, 3),
    Sketcher.Constraint("Horizontal", 10, 3, 11, 3),
    Sketcher.Constraint("Horizontal", 9, 3, 12, 3),
    Sketcher.Constraint("Horizontal", 12, 3, 14, 3),
    Sketcher.Constraint("Horizontal", 15, 3, 16, 3),
    Sketcher.Constraint("Horizontal", 14, 3, 17, 3),
    Sketcher.Constraint("Horizontal", 17, 3, 19, 3),
    Sketcher.Constraint("Horizontal", 20, 3, 21, 3),
    Sketcher.Constraint("Horizontal", 19, 3, 22, 3),
    Sketcher.Constraint("Horizontal", 22, 3, 24, 3),
    Sketcher.Constraint("Horizontal", 25, 3, 26, 3),
    Sketcher.Constraint("Horizontal", 24, 3, 27, 3),
    Sketcher.Constraint("Horizontal", 27, 3, 29, 3),
    Sketcher.Constraint("Horizontal", 30, 3, 31, 3),
    Sketcher.Constraint("Horizontal", 29, 3, 32, 3),
    Sketcher.Constraint("Horizontal", 32, 3, 34, 3),
    Sketcher.Constraint("Horizontal", 36, 3, 42, 3),
    Sketcher.Constraint("Horizontal", 34, 3, 44, 3),
    Sketcher.Constraint("Horizontal", 44, 3, 46, 3),
    Sketcher.Constraint("Horizontal", 42, 3, 49, 3),
    Sketcher.Constraint("Horizontal", 49, 3, 50, 3),
    Sketcher.Constraint("Horizontal", 50, 3, 53, 3),
    Sketcher.Constraint("Horizontal", 53, 3, 54, 3),
    Sketcher.Constraint("Horizontal", 54, 3, 57, 3),
    Sketcher.Constraint("Horizontal", 57, 3, 58, 3),
    Sketcher.Constraint("Horizontal", 58, 3, 61, 3),
    Sketcher.Constraint("Horizontal", 61, 3, 62, 3),
    Sketcher.Constraint("Horizontal", 62, 3, 65, 3),
    Sketcher.Constraint("Horizontal", 65, 3, 66, 3),
    Sketcher.Constraint("Horizontal", 66, 3, 69, 3),
    Sketcher.Constraint("Horizontal", 69, 3, 70, 3),
    Sketcher.Constraint("Horizontal", 70, 3, 73, 3),
    Sketcher.Constraint("Horizontal", 73, 3, 74, 3),
    Sketcher.Constraint("Horizontal", 0, 2, 5, 2),
    Sketcher.Constraint("Horizontal", 5, 2, 10, 2),
    Sketcher.Constraint("Horizontal", 10, 2, 15, 2),
    Sketcher.Constraint("Horizontal", 15, 2, 20, 2),
    Sketcher.Constraint("Horizontal", 20, 2, 25, 2),
    Sketcher.Constraint("Horizontal", 25, 2, 30, 2),
    Sketcher.Constraint("Equal", 37, 41),
    Sketcher.Constraint("Radius", 0, Q("10.5 mm")),
    Sketcher.Constraint("Radius", 36, Q("1.5 mm")),
    Sketcher.Constraint("DistanceY", 38, 2, 38, 1, Q("4 mm")),
    Sketcher.Constraint("Radius", 3, Q("8.25 mm")),
    Sketcher.Constraint("DistanceX", 39, 1, 39, 2, Q("174.8 mm")),
    Sketcher.Constraint("DistanceY", -1, 1, 0, 3, Q("11 mm")),
    Sketcher.Constraint("DistanceX", -1, 1, 6, 3, Q("118 mm")),
    Sketcher.Constraint("DistanceX", -1, 1, 1, 2, Q("145.26 mm")),
])
pad1 = body.newObject("PartDesign::Pad", "Pad")
pad1.Profile = sketch1
pad1.Length = 8

doc.recompute()
